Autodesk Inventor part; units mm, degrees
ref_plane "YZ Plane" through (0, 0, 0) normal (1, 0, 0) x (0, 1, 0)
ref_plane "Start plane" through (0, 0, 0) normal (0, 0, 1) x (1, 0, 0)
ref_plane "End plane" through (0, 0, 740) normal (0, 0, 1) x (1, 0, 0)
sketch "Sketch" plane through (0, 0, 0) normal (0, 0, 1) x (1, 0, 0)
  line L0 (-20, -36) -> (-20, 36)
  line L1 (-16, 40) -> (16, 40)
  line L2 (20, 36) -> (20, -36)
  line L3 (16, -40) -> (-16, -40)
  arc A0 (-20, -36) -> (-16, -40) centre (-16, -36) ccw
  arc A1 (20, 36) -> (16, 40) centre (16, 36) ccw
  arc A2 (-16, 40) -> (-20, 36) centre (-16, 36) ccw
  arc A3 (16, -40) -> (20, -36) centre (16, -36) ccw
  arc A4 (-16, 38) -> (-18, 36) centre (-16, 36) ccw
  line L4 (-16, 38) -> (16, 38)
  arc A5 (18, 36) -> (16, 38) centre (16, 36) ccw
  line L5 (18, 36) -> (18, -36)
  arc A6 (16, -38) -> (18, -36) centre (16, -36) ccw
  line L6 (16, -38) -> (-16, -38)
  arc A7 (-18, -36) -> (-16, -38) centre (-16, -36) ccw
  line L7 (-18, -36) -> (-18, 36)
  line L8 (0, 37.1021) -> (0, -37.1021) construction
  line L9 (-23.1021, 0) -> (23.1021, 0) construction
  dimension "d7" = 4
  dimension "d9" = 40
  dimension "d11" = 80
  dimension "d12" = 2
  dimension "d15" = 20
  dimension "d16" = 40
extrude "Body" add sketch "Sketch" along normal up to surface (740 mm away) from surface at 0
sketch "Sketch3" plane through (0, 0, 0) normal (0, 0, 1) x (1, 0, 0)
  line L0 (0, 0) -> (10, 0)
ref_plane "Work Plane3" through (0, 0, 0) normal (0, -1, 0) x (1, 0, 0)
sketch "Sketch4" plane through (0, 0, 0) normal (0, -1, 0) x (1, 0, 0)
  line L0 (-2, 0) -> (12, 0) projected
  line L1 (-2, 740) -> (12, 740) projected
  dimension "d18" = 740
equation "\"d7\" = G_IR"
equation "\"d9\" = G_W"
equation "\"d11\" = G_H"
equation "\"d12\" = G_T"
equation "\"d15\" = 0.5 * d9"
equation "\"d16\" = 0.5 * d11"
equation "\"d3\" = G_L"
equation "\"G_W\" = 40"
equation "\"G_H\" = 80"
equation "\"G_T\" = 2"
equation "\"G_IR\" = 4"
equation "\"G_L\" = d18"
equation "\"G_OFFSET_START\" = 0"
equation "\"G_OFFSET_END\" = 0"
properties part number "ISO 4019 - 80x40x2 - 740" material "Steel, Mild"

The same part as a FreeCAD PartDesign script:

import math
import FreeCAD as App
import Part
import Sketcher
from FreeCAD import Vector
Q = App.Units.Quantity

doc = App.newDocument("Part")
body = doc.addObject("PartDesign::Body", "Body")

sketch1 = body.newObject("Sketcher::SketchObject", "Sketch")
sketch1.AttachmentSupport = (doc.getObject("XY_Plane"), [""])
sketch1.MapMode = "FlatFace"
sketch1.addGeometry(Part.LineSegment(Vector(-20, 36, 0), Vector(-20, -36, 0)), False)
sketch1.addGeometry(Part.ArcOfCircle(Part.Circle(Vector(-16, -36, 0), Vector(0, 0, 1), 4), math.radians(180), math.radians(270)), False)
sketch1.addGeometry(Part.LineSegment(Vector(-16, -40, 0), Vector(16, -40, 0)), False)
sketch1.addGeometry(Part.ArcOfCircle(Part.Circle(Vector(16, -36, 0), Vector(0, 0, 1), 4), math.radians(-90), math.radians(0)), False)
sketch1.addGeometry(Part.LineSegment(Vector(20, -36, 0), Vector(20, 36, 0)), False)
sketch1.addGeometry(Part.ArcOfCircle(Part.Circle(Vector(16, 36, 0), Vector(0, 0, 1), 4), math.radians(0), math.radians(90)), False)
sketch1.addGeometry(Part.LineSegment(Vector(16, 40, 0), Vector(-16, 40, 0)), False)
sketch1.addGeometry(Part.ArcOfCircle(Part.Circle(Vector(-16, 36, 0), Vector(0, 0, 1), 4), math.radians(90), math.radians(180)), False)
sketch1.addGeometry(Part.ArcOfCircle(Part.Circle(Vector(-16, 36, 0), Vector(0, 0, 1), 2), math.radians(90), math.radians(180)), False)
sketch1.addGeometry(Part.LineSegment(Vector(-16, 38, 0), Vector(16, 38, 0)), False)
sketch1.addGeometry(Part.ArcOfCircle(Part.Circle(Vector(16, 36, 0), Vector(0, 0, 1), 2), math.radians(0), math.radians(90)), False)
sketch1.addGeometry(Part.LineSegment(Vector(18, 36, 0), Vector(18, -36, 0)), False)
sketch1.addGeometry(Part.ArcOfCircle(Part.Circle(Vector(16, -36, 0), Vector(0, 0, 1), 2), math.radians(-90), math.radians(0)), False)
sketch1.addGeometry(Part.LineSegment(Vector(16, -38, 0), Vector(-16, -38, 0)), False)
sketch1.addGeometry(Part.ArcOfCircle(Part.Circle(Vector(-16, -36, 0), Vector(0, 0, 1), 2), math.radians(180), math.radians(270)), False)
sketch1.addGeometry(Part.LineSegment(Vector(-18, -36, 0), Vector(-18, 36, 0)), False)
sketch1.addConstraint(Sketcher.Constraint("Tangent", 0, 2, 1, 1))
sketch1.addConstraint(Sketcher.Constraint("Tangent", 1, 2, 2, 1))
sketch1.addConstraint(Sketcher.Constraint("Tangent", 2, 2, 3, 1))
sketch1.addConstraint(Sketcher.Constraint("Tangent", 3, 2, 4, 1))
sketch1.addConstraint(Sketcher.Constraint("Tangent", 4, 2, 5, 1))
sketch1.addConstraint(Sketcher.Constraint("Tangent", 5, 2, 6, 1))
sketch1.addConstraint(Sketcher.Constraint("Tangent", 6, 2, 7, 1))
sketch1.addConstraint(Sketcher.Constraint("Tangent", 7, 2, 0, 1))
sketch1.addConstraint(Sketcher.Constraint("Tangent", 8, 1, 9, 1))
sketch1.addConstraint(Sketcher.Constraint("Tangent", 9, 2, 10, 2))
sketch1.addConstraint(Sketcher.Constraint("Tangent", 10, 1, 11, 1))
sketch1.addConstraint(Sketcher.Constraint("Tangent", 11, 2, 12, 2))
sketch1.addConstraint(Sketcher.Constraint("Tangent", 12, 1, 13, 1))
sketch1.addConstraint(Sketcher.Constraint("Tangent", 13, 2, 14, 2))
sketch1.addConstraint(Sketcher.Constraint("Tangent", 14, 1, 15, 1))
sketch1.addConstraint(Sketcher.Constraint("Tangent", 15, 2, 8, 2))
sketch1.addConstraint(Sketcher.Constraint("Vertical", 0))
sketch1.addConstraint(Sketcher.Constraint("Horizontal", 2))
sketch1.addConstraint(Sketcher.Constraint("Vertical", 4))
sketch1.addConstraint(Sketcher.Constraint("Horizontal", 6))
sketch1.addConstraint(Sketcher.Constraint("Horizontal", 9))
sketch1.addConstraint(Sketcher.Constraint("Vertical", 11))
sketch1.addConstraint(Sketcher.Constraint("Horizontal", 13))
sketch1.addConstraint(Sketcher.Constraint("Vertical", 15))
sketch1.addConstraint(Sketcher.Constraint("Coincident", 8, 3, 7, 3))
sketch1.addConstraint(Sketcher.Constraint("Coincident", 10, 3, 5, 3))
sketch1.addConstraint(Sketcher.Constraint("Coincident", 12, 3, 3, 3))
sketch1.addConstraint(Sketcher.Constraint("Equal", 1, 3))
sketch1.addConstraint(Sketcher.Constraint("Equal", 3, 5))
sketch1.addConstraint(Sketcher.Constraint("Equal", 5, 7))
sketch1.addConstraint(Sketcher.Constraint("Equal", 12, 14))
sketch1.addConstraint(Sketcher.Constraint("Symmetric", 1, 3, 5, 3, -1, 1))
sketch1.addConstraint(Sketcher.Constraint("Radius", 1, Q("4 mm")))
sketch1.addConstraint(Sketcher.Constraint("Radius", 8, Q("2 mm")))
sketch1.addConstraint(Sketcher.Constraint("DistanceX", 0, 2, -1, 1, Q("20 mm")))
sketch1.addConstraint(Sketcher.Constraint("DistanceY", 1, 2, -1, 1, Q("40 mm")))
pad1 = body.newObject("PartDesign::Pad", "Pad")
pad1.Profile = sketch1
pad1.Length = 740

doc.recompute()
